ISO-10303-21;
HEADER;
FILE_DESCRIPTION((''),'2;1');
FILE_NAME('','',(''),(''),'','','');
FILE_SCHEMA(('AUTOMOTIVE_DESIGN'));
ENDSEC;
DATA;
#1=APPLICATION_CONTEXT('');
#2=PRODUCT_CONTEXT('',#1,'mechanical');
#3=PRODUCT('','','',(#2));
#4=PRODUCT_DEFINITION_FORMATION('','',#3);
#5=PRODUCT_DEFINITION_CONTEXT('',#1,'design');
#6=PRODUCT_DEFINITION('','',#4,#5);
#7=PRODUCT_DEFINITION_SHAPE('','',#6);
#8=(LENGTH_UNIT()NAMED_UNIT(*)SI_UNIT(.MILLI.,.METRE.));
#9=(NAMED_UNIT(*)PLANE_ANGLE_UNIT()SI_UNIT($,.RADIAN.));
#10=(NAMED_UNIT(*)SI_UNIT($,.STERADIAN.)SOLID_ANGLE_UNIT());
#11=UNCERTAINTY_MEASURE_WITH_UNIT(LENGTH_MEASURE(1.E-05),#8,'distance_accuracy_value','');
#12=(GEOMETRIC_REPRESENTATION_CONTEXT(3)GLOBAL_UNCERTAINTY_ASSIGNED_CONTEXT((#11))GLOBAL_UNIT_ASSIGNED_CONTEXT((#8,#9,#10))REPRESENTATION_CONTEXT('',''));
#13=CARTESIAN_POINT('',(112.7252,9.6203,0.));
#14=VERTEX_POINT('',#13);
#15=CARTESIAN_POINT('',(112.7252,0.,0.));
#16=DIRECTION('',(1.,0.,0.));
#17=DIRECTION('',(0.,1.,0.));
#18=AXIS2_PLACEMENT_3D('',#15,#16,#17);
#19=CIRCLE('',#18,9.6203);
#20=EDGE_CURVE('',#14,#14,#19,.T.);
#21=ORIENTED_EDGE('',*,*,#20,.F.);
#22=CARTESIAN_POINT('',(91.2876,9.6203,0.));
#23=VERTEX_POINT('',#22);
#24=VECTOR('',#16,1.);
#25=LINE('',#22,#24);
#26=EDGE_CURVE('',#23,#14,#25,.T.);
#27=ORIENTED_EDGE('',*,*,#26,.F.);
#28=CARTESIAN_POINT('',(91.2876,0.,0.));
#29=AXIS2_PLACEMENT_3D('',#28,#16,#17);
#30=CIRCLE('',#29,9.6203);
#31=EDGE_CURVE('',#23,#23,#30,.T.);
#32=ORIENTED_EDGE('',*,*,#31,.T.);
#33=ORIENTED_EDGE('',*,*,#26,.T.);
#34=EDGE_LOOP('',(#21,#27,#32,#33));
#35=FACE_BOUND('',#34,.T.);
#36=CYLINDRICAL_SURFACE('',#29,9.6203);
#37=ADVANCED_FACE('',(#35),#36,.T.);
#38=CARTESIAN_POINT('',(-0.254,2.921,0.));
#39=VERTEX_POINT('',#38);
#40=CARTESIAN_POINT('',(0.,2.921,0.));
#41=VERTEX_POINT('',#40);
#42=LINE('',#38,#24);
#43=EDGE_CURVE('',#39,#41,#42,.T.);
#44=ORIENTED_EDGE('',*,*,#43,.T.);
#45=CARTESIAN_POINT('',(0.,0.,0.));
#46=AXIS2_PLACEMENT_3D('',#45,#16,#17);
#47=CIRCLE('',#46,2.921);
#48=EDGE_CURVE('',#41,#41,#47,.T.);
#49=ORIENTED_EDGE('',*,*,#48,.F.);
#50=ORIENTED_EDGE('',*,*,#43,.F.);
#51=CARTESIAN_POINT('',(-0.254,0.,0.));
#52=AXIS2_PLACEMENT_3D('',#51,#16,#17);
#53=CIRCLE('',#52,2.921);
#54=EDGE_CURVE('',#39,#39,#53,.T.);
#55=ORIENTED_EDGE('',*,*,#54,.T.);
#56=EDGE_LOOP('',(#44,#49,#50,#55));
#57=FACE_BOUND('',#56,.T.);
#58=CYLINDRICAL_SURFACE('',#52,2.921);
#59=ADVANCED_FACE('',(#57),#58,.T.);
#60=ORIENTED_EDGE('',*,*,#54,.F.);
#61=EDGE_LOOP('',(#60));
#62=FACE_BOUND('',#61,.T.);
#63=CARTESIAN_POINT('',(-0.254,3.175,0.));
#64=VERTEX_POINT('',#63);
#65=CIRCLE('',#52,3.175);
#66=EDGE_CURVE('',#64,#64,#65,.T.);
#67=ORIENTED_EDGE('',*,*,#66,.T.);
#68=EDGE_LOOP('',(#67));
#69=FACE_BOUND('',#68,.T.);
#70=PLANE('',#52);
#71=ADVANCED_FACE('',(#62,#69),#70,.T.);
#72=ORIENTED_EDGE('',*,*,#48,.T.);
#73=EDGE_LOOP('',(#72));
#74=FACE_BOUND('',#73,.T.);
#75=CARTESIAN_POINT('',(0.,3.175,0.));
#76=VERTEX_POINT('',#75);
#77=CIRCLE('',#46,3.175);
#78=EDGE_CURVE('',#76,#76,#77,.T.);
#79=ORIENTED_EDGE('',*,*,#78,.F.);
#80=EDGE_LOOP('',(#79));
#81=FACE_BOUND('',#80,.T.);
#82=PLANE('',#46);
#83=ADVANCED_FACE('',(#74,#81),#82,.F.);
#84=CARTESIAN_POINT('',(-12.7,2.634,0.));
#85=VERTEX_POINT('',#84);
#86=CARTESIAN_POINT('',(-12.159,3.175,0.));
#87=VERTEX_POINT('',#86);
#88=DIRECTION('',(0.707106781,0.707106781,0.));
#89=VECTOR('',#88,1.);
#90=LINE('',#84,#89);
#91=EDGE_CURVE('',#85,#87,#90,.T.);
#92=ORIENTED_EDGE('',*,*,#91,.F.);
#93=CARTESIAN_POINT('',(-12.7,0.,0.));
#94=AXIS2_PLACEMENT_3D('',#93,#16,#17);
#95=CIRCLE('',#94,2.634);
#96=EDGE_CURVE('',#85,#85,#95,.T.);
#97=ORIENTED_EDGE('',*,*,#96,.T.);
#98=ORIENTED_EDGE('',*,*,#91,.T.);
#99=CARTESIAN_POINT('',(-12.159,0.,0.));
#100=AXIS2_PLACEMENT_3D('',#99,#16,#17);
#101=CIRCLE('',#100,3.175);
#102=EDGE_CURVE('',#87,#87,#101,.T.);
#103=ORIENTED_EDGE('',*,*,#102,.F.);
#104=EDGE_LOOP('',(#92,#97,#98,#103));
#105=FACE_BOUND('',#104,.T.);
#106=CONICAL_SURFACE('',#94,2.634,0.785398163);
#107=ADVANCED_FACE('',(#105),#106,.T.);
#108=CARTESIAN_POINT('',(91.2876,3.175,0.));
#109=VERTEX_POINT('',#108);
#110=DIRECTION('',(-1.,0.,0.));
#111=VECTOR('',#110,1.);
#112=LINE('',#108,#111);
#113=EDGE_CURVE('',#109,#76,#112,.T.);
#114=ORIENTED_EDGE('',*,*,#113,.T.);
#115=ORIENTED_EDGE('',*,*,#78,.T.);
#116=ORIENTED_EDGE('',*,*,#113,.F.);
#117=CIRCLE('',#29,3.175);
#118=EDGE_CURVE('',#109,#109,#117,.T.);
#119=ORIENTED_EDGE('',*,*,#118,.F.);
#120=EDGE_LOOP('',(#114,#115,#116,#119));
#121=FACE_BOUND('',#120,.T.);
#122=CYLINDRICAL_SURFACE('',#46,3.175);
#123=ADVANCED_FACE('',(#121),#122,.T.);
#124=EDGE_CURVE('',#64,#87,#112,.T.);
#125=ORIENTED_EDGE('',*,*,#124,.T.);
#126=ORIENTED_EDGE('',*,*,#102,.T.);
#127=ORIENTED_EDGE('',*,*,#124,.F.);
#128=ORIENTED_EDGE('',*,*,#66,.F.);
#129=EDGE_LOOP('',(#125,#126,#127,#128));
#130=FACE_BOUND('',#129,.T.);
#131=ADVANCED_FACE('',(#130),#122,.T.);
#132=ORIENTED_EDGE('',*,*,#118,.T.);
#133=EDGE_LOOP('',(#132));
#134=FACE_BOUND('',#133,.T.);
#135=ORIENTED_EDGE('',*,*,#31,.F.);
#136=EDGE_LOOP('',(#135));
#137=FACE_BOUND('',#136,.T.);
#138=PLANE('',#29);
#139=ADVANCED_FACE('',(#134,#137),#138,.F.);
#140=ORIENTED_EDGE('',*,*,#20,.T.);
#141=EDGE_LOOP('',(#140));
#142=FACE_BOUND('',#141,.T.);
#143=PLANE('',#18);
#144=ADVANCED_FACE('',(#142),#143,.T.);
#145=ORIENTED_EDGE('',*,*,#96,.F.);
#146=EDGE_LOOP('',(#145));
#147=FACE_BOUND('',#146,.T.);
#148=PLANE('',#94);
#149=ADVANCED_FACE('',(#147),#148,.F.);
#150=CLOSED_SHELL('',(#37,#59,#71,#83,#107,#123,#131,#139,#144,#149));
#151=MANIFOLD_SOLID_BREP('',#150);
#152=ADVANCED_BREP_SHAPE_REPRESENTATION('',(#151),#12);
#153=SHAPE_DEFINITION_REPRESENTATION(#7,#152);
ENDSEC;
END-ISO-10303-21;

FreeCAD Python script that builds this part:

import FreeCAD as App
import Part
import Sketcher
Q = App.Units.Quantity

doc = App.newDocument("Part")
body = doc.addObject("PartDesign::Body", "Body")

# Sketch on XY plane
sketch1 = body.newObject("Sketcher::SketchObject", "Sketch")
sketch1.AttachmentSupport = (doc.getObject("XY_Plane"), [""])
sketch1.MapMode = "FlatFace"
sketch1.addGeometry(Part.LineSegment(App.Vector(0, 0, 0), App.Vector(112.7252, 0, 0)), False)
sketch1.addGeometry(Part.LineSegment(App.Vector(112.7252, 0, 0), App.Vector(112.7252, 9.6203, 0)), False)
sketch1.addGeometry(Part.LineSegment(App.Vector(112.7252, 9.6203, 0), App.Vector(91.2876, 9.6203, 0)), False)
sketch1.addGeometry(Part.LineSegment(App.Vector(91.2876, 9.6203, 0), App.Vector(91.2876, 3.175, 0)), False)
sketch1.addGeometry(Part.LineSegment(App.Vector(91.2876, 3.175, 0), App.Vector(0, 3.175, 0)), False)
sketch1.addGeometry(Part.LineSegment(App.Vector(0, 3.175, 0), App.Vector(0, 0, 0)), False)
sketch1.addConstraint(Sketcher.Constraint("Coincident", 0, 2, 1, 1))
sketch1.addConstraint(Sketcher.Constraint("Coincident", 1, 2, 2, 1))
sketch1.addConstraint(Sketcher.Constraint("Coincident", 2, 2, 3, 1))
sketch1.addConstraint(Sketcher.Constraint("Coincident", 3, 2, 4, 1))
sketch1.addConstraint(Sketcher.Constraint("Coincident", 4, 2, 5, 1))
sketch1.addConstraint(Sketcher.Constraint("Coincident", 5, 2, 0, 1))
sketch1.addConstraint(Sketcher.Constraint("Horizontal", 0))
sketch1.addConstraint(Sketcher.Constraint("Vertical", 1))
sketch1.addConstraint(Sketcher.Constraint("Horizontal", 2))
sketch1.addConstraint(Sketcher.Constraint("Vertical", 3))
sketch1.addConstraint(Sketcher.Constraint("Horizontal", 4))
sketch1.addConstraint(Sketcher.Constraint("Vertical", 5))
sketch1.addConstraint(Sketcher.Constraint("Coincident", 5, 2, -1, 1))
sketch1.addConstraint(Sketcher.Constraint("DistanceX", 0, 1, 0, 2, Q("4.438 in")))
sketch1.addConstraint(Sketcher.Constraint("DistanceX", 2, 2, 2, 1, Q("0.844 in")))
sketch1.addConstraint(Sketcher.Constraint("DistanceY", 5, 2, 5, 1, Q("0.125 in")))
sketch1.addConstraint(Sketcher.Constraint("DistanceY", 1, 1, 1, 2, 9.6203))
revolution = body.newObject("PartDesign::Revolution", "Revolution")
revolution.Profile = sketch1
revolution.ReferenceAxis = (sketch1, ["H_Axis"])
revolution.Angle = 360

# Sketch on XY plane
sketch2 = body.newObject("Sketcher::SketchObject", "Sketch001")
sketch2.AttachmentSupport = (doc.getObject("XY_Plane"), [""])
sketch2.MapMode = "FlatFace"
sketch2.addGeometry(Part.LineSegment(App.Vector(-12.7, 0, 0), App.Vector(0, 0, 0)), False)
sketch2.addGeometry(Part.LineSegment(App.Vector(0, 0, 0), App.Vector(0, 3.175, 0)), False)
sketch2.addGeometry(Part.LineSegment(App.Vector(0, 3.175, 0), App.Vector(-12.159, 3.175, 0)), False)
sketch2.addGeometry(Part.LineSegment(App.Vector(-12.159, 3.175, 0), App.Vector(-12.7, 2.634, 0)), False)
sketch2.addGeometry(Part.LineSegment(App.Vector(-12.7, 2.634, 0), App.Vector(-12.7, 0, 0)), False)
sketch2.addConstraint(Sketcher.Constraint("Coincident", 0, 2, 1, 1))
sketch2.addConstraint(Sketcher.Constraint("Coincident", 1, 2, 2, 1))
sketch2.addConstraint(Sketcher.Constraint("Coincident", 2, 2, 3, 1))
sketch2.addConstraint(Sketcher.Constraint("Coincident", 3, 2, 4, 1))
sketch2.addConstraint(Sketcher.Constraint("Coincident", 4, 2, 0, 1))
sketch2.addConstraint(Sketcher.Constraint("Horizontal", 0))
sketch2.addConstraint(Sketcher.Constraint("Vertical", 1))
sketch2.addConstraint(Sketcher.Constraint("Horizontal", 2))
sketch2.addConstraint(Sketcher.Constraint("Vertical", 4))
sketch2.addConstraint(Sketcher.Constraint("Coincident", 0, 2, -1, 1))
sketch2.addConstraint(Sketcher.Constraint("DistanceX", 0, 1, 0, 2, Q("0.5 in")))
sketch2.addConstraint(Sketcher.Constraint("Angle", 3, Q("-135 deg")))
sketch2.addConstraint(Sketcher.Constraint("DistanceY", 1, 1, 1, 2, Q("0.125 in")))
sketch2.addConstraint(Sketcher.Constraint("DistanceX", 2, 2, 2, 1, Q("0.4787 in")))
revolution2 = body.newObject("PartDesign::Revolution", "Revolution001")
revolution2.Profile = sketch2
revolution2.ReferenceAxis = (sketch2, ["H_Axis"])
revolution2.Angle = 360

# Sketch on XY plane
sketch3 = body.newObject("Sketcher::SketchObject", "Sketch002")
sketch3.AttachmentSupport = (doc.getObject("XY_Plane"), [""])
sketch3.MapMode = "FlatFace"
sketch3.addGeometry(Part.LineSegment(App.Vector(0, 3.429, 0), App.Vector(-0.254, 3.429, 0)), False)
sketch3.addGeometry(Part.LineSegment(App.Vector(-0.254, 3.429, 0), App.Vector(-0.254, 2.921, 0)), False)
sketch3.addGeometry(Part.LineSegment(App.Vector(-0.254, 2.921, 0), App.Vector(0, 2.921, 0)), False)
sketch3.addGeometry(Part.LineSegment(App.Vector(0, 2.921, 0), App.Vector(0, 3.429, 0)), False)
sketch3.addConstraint(Sketcher.Constraint("Coincident", 0, 2, 1, 1))
sketch3.addConstraint(Sketcher.Constraint("Coincident", 1, 2, 2, 1))
sketch3.addConstraint(Sketcher.Constraint("Coincident", 2, 2, 3, 1))
sketch3.addConstraint(Sketcher.Constraint("Coincident", 3, 2, 0, 1))
sketch3.addConstraint(Sketcher.Constraint("Horizontal", 0))
sketch3.addConstraint(Sketcher.Constraint("Vertical", 1))
sketch3.addConstraint(Sketcher.Constraint("Horizontal", 2))
sketch3.addConstraint(Sketcher.Constraint("Vertical", 3))
sketch3.addConstraint(Sketcher.Constraint("PointOnObject", 2, 2, -2))
sketch3.addConstraint(Sketcher.Constraint("DistanceX", 0, 2, 0, 1, Q("0.01 in")))
sketch3.addConstraint(Sketcher.Constraint("DistanceY", 1, 2, 1, 1, Q("0.02 in")))
sketch3.addConstraint(Sketcher.Constraint("DistanceY", -1, 1, 0, 2, Q("0.135 in")))
groove = body.newObject("PartDesign::Groove", "Groove")
groove.Profile = sketch3
groove.ReferenceAxis = (sketch3, ["H_Axis"])
groove.Angle = 360

doc.recompute()
